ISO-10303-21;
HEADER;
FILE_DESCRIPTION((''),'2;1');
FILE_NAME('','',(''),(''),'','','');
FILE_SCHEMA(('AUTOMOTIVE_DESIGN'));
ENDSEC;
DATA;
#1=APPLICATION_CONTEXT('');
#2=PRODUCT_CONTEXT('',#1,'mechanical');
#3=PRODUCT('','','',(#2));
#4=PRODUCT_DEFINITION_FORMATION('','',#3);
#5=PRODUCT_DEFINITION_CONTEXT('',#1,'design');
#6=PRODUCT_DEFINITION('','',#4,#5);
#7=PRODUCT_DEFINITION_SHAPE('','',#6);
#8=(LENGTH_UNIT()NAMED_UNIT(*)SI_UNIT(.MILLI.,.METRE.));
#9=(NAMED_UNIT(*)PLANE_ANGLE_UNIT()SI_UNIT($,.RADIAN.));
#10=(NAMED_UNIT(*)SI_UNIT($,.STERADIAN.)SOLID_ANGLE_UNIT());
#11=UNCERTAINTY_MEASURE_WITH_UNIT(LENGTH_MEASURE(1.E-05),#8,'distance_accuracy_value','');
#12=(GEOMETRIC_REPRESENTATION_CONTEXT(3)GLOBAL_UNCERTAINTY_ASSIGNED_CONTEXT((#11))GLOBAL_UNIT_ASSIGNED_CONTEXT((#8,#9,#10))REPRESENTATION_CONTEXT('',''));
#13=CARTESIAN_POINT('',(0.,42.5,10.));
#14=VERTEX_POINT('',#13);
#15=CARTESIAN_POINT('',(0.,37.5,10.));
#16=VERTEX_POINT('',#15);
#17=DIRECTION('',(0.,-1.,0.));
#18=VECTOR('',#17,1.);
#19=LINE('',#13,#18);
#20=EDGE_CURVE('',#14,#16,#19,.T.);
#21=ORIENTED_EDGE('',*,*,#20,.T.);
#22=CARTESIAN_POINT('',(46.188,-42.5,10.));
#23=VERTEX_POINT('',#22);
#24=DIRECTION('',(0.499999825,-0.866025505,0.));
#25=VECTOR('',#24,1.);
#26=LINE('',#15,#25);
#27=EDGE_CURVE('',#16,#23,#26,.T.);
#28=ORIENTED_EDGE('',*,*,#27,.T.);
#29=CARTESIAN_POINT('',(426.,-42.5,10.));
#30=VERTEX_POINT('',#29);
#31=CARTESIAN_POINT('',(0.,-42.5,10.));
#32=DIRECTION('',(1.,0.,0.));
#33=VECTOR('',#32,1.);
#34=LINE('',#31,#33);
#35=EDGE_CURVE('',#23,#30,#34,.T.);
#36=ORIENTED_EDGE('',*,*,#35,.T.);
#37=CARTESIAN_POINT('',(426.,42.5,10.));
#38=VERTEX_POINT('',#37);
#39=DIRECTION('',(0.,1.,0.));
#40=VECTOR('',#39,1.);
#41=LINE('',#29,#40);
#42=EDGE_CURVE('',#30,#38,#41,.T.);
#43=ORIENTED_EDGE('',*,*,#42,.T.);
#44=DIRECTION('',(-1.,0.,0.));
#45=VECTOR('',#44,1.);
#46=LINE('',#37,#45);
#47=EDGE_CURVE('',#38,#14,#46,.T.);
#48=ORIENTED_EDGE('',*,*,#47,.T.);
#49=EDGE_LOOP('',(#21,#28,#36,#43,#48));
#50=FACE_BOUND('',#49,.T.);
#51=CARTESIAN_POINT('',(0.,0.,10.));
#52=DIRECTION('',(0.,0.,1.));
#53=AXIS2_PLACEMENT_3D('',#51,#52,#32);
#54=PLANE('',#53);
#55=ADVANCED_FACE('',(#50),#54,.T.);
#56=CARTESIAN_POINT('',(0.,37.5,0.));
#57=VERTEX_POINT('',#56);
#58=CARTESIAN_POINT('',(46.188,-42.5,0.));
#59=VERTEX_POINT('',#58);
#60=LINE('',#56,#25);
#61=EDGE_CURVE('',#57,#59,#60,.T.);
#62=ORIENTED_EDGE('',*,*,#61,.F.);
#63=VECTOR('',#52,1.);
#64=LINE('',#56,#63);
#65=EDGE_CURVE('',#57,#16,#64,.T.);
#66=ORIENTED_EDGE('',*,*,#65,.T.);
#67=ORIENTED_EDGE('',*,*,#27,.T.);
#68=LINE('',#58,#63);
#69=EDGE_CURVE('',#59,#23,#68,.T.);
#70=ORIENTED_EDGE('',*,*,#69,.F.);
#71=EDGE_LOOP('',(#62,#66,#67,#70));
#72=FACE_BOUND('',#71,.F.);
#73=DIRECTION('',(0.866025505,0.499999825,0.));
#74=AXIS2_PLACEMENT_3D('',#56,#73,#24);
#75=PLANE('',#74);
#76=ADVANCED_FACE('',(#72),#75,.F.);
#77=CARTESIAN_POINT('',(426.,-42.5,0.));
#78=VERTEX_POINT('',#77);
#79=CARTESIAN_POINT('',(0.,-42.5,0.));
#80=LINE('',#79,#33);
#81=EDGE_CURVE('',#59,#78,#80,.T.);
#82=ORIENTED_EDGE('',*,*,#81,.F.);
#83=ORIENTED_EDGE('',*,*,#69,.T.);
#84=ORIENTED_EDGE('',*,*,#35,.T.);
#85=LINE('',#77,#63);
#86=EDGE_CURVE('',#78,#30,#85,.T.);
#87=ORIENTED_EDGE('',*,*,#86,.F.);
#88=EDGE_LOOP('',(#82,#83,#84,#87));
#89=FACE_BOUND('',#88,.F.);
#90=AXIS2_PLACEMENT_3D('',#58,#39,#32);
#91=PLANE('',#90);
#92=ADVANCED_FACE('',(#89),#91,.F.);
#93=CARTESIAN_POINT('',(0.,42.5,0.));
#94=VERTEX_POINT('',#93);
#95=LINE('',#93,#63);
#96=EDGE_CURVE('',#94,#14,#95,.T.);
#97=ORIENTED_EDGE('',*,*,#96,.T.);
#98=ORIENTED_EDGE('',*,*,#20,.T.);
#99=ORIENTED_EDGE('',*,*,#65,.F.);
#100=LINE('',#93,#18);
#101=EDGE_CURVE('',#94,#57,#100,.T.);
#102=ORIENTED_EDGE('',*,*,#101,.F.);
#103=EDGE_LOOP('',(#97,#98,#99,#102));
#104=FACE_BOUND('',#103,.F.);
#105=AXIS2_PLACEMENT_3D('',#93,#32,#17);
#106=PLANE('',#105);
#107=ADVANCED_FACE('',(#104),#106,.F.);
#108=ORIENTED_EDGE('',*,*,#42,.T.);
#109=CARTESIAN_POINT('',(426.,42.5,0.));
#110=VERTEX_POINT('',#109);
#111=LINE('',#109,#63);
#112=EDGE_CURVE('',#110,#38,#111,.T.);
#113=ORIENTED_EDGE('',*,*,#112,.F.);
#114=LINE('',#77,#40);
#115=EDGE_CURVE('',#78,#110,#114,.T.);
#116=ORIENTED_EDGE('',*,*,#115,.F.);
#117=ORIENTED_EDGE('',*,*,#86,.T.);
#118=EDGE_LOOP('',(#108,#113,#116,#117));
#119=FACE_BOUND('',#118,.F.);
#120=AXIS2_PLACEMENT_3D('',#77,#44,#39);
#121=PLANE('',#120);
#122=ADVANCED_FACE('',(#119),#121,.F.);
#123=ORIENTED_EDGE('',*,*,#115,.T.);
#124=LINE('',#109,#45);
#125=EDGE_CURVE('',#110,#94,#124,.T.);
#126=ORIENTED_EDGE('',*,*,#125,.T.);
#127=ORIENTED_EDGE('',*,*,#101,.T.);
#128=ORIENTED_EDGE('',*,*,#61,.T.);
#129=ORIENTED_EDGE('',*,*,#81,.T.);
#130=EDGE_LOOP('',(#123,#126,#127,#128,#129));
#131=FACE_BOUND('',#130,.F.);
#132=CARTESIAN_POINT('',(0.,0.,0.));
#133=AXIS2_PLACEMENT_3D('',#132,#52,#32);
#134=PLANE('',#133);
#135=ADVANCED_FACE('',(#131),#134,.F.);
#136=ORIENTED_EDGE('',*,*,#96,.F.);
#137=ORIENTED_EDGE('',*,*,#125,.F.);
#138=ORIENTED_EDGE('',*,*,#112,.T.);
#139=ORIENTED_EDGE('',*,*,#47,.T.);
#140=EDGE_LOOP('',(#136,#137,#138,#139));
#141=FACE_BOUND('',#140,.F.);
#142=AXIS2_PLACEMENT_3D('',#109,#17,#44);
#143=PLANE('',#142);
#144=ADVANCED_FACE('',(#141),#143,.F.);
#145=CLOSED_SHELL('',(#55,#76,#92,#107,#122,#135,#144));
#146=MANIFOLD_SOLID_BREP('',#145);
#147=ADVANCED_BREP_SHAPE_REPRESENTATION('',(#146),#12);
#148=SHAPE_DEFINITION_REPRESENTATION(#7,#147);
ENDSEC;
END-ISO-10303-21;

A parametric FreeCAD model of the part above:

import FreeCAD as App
import Part
import Sketcher

V = App.Vector
Q = App.Units.Quantity


def add_polygon(sketch, points):
    """Adds a closed chain of lines whose ends are joined by coincident constraints."""
    first, n = sketch.GeometryCount, len(points)
    for a, b in zip(points, points[1:] + points[:1]):
        sketch.addGeometry(Part.LineSegment(App.Vector(*a, 0), App.Vector(*b, 0)), False)
    for i in range(n):
        sketch.addConstraint(Sketcher.Constraint("Coincident", first + i, 2, first + (i + 1) % n, 1))

doc = App.newDocument("Part")
params = doc.addObject("Spreadsheet::Sheet", "Params")
for row, (alias, value) in enumerate([
    ("sketch1_width", "426 mm"),
    ("sketch1_height", "85 mm"),
    ("sketch1_height2", "5 mm"),
    ("pad1_length", "10 mm"),
], start=1):
    params.set(f"A{row}", alias)
    params.set(f"B{row}", "=" + value)
    params.setAlias(f"B{row}", alias)

body = doc.addObject("PartDesign::Body", "Body")

sketch1 = body.newObject("Sketcher::SketchObject", "Sketch")
sketch1.AttachmentSupport = (doc.getObject("XY_Plane"), [""])
sketch1.MapMode = "FlatFace"
add_polygon(sketch1, [(0, 38), (46, -42), (426, -42), (426, 42), (0, 42)])
sketch1.addConstraint([
    Sketcher.Constraint("Horizontal", 1),
    Sketcher.Constraint("Vertical", 2),
    Sketcher.Constraint("Horizontal", 3),
    Sketcher.Constraint("Vertical", 4),
    Sketcher.Constraint("PointOnObject", 3, 2, -2),
    Sketcher.Constraint("DistanceX", 3, 2, 3, 1, 426.0),
    Sketcher.Constraint("DistanceY", 2, 1, 2, 2, 85.0),
    Sketcher.Constraint("DistanceY", 4, 2, 4, 1, 5.0),
    Sketcher.Constraint("Angle", 0, Q("-60 deg")),
    Sketcher.Constraint("DistanceY", 0, 2, -1, 1, 42.5),
])
sketch1.setExpression("Constraints[10]", "Params.sketch1_width")
sketch1.setExpression("Constraints[11]", "Params.sketch1_height")
sketch1.setExpression("Constraints[12]", "Params.sketch1_height2")
pad1 = body.newObject("PartDesign::Pad", "Pad")
pad1.Profile = sketch1
pad1.setExpression("Length", "Params.pad1_length")

doc.recompute()
